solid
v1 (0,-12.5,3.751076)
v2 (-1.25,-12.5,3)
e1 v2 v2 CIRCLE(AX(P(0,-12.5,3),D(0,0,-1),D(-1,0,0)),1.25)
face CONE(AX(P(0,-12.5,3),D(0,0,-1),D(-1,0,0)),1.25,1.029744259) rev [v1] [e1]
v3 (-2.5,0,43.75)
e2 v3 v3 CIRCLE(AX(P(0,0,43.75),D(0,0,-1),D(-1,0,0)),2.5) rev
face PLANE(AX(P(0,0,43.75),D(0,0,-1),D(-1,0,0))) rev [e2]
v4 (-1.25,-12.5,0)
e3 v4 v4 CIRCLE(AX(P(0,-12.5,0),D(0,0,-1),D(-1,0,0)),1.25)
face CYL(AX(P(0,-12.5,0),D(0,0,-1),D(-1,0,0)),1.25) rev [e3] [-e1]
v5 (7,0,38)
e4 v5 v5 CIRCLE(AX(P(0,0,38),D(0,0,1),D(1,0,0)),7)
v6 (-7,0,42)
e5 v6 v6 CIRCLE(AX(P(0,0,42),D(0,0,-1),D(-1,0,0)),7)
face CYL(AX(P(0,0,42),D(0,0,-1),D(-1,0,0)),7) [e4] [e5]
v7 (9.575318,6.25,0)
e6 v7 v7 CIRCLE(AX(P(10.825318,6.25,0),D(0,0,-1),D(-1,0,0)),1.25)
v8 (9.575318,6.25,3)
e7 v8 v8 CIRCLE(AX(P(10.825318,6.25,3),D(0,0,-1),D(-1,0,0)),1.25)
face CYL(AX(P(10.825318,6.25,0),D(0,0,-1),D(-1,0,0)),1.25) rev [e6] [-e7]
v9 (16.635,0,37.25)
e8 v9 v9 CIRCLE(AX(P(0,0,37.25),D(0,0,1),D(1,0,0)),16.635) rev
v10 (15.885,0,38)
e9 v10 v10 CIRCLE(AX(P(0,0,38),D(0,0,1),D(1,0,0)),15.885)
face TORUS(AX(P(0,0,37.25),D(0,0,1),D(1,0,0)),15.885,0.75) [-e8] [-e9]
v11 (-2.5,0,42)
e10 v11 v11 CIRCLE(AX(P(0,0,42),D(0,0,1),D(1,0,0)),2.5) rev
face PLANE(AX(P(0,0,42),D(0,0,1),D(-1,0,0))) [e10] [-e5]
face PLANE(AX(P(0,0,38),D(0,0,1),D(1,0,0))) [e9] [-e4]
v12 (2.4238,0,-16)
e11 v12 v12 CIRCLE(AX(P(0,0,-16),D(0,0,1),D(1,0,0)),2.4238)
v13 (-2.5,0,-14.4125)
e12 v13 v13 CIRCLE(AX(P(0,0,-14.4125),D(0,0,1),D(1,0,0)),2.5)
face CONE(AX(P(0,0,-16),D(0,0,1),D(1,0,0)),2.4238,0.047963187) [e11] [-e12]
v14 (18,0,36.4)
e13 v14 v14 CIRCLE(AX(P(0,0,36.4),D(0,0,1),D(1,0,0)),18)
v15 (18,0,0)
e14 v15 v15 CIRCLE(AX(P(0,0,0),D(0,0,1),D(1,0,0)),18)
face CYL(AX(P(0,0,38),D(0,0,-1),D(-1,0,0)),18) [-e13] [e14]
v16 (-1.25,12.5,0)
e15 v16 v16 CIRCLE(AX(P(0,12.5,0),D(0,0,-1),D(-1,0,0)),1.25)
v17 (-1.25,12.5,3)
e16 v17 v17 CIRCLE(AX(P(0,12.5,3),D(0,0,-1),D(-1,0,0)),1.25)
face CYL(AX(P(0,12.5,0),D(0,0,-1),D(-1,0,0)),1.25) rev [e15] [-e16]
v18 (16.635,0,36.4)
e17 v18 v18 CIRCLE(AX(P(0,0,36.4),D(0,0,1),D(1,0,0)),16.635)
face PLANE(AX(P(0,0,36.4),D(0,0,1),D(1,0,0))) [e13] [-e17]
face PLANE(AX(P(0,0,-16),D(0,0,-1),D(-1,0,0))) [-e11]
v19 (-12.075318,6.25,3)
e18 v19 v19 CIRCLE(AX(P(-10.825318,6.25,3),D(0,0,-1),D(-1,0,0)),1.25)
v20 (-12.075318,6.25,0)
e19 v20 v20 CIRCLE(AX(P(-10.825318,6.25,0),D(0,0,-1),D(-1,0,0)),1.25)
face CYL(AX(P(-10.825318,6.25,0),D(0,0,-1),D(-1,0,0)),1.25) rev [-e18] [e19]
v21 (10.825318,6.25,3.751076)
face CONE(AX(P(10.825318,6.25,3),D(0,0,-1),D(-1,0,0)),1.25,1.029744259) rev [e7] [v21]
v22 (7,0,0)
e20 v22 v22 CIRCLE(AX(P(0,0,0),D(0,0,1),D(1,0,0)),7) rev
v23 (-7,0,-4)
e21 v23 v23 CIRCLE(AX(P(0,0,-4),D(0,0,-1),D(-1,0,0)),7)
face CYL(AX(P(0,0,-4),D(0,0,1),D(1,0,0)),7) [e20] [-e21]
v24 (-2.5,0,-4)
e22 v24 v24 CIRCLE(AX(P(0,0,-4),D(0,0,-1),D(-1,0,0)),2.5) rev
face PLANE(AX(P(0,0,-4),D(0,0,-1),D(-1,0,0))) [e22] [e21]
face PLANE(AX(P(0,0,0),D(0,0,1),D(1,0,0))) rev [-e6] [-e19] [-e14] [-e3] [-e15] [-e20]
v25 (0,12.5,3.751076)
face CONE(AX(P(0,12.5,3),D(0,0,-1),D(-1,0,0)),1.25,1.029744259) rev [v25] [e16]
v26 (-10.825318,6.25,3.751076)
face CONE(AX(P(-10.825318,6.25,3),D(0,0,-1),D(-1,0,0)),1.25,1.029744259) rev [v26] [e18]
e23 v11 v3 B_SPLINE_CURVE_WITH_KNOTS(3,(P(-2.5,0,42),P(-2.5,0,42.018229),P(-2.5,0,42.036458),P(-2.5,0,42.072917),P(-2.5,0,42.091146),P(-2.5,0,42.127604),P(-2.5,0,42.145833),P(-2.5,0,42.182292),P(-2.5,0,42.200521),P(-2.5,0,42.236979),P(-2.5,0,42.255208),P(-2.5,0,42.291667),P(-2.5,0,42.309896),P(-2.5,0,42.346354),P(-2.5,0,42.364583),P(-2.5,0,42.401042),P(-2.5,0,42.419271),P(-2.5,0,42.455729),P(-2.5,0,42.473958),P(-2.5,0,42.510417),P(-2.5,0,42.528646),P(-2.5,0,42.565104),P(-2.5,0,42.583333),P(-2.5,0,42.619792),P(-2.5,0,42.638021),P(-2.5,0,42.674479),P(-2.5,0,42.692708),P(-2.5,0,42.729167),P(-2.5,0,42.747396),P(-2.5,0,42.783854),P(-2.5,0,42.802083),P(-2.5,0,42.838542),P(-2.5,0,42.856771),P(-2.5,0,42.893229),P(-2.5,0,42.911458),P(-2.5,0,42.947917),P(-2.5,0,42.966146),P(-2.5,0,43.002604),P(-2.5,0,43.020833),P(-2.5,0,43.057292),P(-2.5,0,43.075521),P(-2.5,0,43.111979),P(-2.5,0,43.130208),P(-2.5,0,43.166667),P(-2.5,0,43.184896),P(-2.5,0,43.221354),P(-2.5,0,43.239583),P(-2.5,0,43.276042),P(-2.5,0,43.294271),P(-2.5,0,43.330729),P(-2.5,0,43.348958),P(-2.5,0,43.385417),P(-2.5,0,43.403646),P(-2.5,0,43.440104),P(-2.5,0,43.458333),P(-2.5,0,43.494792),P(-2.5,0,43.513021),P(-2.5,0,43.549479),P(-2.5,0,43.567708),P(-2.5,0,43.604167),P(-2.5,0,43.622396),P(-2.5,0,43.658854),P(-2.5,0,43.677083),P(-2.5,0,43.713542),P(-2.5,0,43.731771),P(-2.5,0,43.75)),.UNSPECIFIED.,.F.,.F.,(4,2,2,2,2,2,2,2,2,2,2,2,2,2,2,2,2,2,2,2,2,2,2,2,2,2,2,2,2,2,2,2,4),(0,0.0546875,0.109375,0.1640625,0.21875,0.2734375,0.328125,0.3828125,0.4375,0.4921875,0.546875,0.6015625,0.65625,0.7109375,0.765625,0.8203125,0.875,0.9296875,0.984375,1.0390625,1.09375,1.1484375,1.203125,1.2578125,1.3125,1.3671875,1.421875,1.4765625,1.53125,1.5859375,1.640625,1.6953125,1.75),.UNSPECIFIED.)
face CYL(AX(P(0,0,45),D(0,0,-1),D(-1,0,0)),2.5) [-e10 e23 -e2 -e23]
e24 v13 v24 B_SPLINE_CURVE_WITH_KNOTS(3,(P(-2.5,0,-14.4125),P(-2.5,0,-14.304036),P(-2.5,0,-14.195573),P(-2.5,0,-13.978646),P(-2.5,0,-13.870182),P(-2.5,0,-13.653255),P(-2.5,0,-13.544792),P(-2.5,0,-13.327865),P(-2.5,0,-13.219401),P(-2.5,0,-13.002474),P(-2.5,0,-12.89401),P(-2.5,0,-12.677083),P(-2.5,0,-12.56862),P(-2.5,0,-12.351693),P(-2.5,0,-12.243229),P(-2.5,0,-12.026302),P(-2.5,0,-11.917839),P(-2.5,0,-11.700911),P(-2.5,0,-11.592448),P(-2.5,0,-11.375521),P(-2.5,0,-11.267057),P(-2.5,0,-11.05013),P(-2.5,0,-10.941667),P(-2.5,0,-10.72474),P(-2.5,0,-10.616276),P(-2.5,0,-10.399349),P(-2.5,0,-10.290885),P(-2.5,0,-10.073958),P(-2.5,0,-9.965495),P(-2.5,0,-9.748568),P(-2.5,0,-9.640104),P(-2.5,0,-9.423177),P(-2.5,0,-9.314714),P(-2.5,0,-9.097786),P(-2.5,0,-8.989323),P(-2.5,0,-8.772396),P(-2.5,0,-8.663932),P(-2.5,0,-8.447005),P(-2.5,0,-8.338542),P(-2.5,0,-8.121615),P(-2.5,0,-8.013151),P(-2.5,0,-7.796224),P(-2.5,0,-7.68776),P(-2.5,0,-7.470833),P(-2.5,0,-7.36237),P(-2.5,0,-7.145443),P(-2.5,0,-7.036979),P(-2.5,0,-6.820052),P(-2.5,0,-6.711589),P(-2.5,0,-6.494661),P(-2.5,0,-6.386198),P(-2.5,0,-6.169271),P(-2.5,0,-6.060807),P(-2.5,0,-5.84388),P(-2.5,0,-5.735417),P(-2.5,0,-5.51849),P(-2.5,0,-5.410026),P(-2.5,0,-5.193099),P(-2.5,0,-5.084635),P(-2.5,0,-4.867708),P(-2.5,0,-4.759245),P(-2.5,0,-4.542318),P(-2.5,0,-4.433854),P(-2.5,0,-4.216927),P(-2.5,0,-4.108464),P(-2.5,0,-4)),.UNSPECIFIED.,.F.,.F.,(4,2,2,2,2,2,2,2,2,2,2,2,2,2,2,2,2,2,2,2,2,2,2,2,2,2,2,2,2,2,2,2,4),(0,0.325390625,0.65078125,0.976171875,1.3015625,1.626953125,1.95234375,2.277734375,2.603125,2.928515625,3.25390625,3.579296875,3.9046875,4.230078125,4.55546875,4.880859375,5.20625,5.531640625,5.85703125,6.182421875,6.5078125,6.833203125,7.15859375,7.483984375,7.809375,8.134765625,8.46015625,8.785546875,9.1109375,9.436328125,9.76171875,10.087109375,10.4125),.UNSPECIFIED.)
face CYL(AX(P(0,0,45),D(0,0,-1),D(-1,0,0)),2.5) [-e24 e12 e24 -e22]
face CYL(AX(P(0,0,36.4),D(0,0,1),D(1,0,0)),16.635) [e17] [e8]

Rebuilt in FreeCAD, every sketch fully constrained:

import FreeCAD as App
import Part
import Sketcher

V = App.Vector
Q = App.Units.Quantity


def edges_at(feature, points):
    """Names of the edges that pass closest to the given points."""
    edges = feature.Shape.Edges
    near = lambda p: min(range(len(edges)), key=lambda i: edges[i].distToShape(Part.Vertex(*p))[0])
    return sorted({f"Edge{near(p) + 1}" for p in points})

doc = App.newDocument("Part")
body = doc.addObject("PartDesign::Body", "Body")

# Sketch on XY plane
sketch1 = doc.addObject("Sketcher::SketchObject", "Sketch")
body.addObject(sketch1)
sketch1.AttachmentSupport = (doc.XY_Plane, [""])
sketch1.MapMode = "FlatFace"
sketch1.addGeometry(Part.Circle(V(0, 0, 0), V(0, 0, 1), 18), False)
sketch1.addConstraint([
    Sketcher.Constraint("Coincident", 0, 3, -1, 1),
    Sketcher.Constraint("Diameter", 0, Q("36 mm")),
])
pad1 = doc.addObject("PartDesign::Pad", "Pad")
body.addObject(pad1)
pad1.Profile = sketch1
pad1.Length = 38

# Sketch on XY plane
sketch2 = doc.addObject("Sketcher::SketchObject", "Sketch001")
body.addObject(sketch2)
sketch2.AttachmentSupport = (doc.XY_Plane, [""])
sketch2.MapMode = "FlatFace"
sketch2.addGeometry(Part.Circle(V(0, 0, 0), V(0, 0, 1), 2.5), False)
sketch2.addConstraint([
    Sketcher.Constraint("Coincident", 0, 3, -1, 1),
    Sketcher.Constraint("Diameter", 0, Q("5 mm")),
])
pad2 = doc.addObject("PartDesign::Pad", "Pad001")
body.addObject(pad2)
pad2.Profile = sketch2
pad2.Type = "TwoLengths"
pad2.Length = 16
pad2.Length2 = 45
pad2.Reversed = True

# Sketch on XY plane
sketch3 = doc.addObject("Sketcher::SketchObject", "Sketch002")
body.addObject(sketch3)
sketch3.AttachmentSupport = (doc.XY_Plane, [""])
sketch3.MapMode = "FlatFace"
sketch3.addGeometry(Part.Circle(V(0, 0, 0), V(0, 0, 1), 7), False)
sketch3.addConstraint([
    Sketcher.Constraint("Coincident", 0, 3, -1, 1),
    Sketcher.Constraint("Diameter", 0, Q("14 mm")),
])
pad3 = doc.addObject("PartDesign::Pad", "Pad002")
body.addObject(pad3)
pad3.Profile = sketch3
pad3.Length = 4
pad3.Reversed = True

# Sketch on XY plane
sketch4 = doc.addObject("Sketcher::SketchObject", "Sketch003")
body.addObject(sketch4)
sketch4.AttachmentSupport = (doc.XY_Plane, [""])
sketch4.MapMode = "FlatFace"
sketch4.addGeometry([
    Part.Circle(V(0, 12.5, 0), V(0, 0, 1), 1.2),
    Part.Circle(V(10.8, 6.2, 0), V(0, 0, 1), 1.2),
    Part.Circle(V(0, -12.5, 0), V(0, 0, 1), 1.2),
    Part.Circle(V(-10.8, 6.2, 0), V(0, 0, 1), 1.2),
], False)
sketch4.addConstraint([
    Sketcher.Constraint("Equal", 0, 1),
    Sketcher.Constraint("Equal", 1, 2),
    Sketcher.Constraint("Equal", 2, 3),
    Sketcher.Constraint("Symmetric", 0, 3, 2, 3, -1, 1),
    Sketcher.Constraint("Symmetric", 1, 3, 3, 3, -2),
    Sketcher.Constraint("PointOnObject", 0, 3, -2),
    Sketcher.Constraint("Diameter", 0, Q("2.5 mm")),
    Sketcher.Constraint("DistanceY", 2, 3, 0, 3, Q("25 mm")),
    Sketcher.Constraint("DistanceY", -1, 1, 1, 3, Q("6.25 mm")),
    Sketcher.Constraint("DistanceX", -1, 1, 1, 3, Q("10.825318 mm")),
])
doc.recompute()
hole = doc.addObject("PartDesign::Hole", "Hole")
body.addObject(hole)
hole.Profile = sketch4
hole.ThreadType = "None"
hole.Diameter = 2.5
hole.DepthType = "Dimension"
hole.Depth = 3
hole.DrillPoint = "Angled"
hole.DrillPointAngle = 118
hole.Reversed = True

# Sketch on XY plane
sketch5 = doc.addObject("Sketcher::SketchObject", "Sketch004")
body.addObject(sketch5)
sketch5.AttachmentSupport = (doc.XY_Plane, [""])
sketch5.MapMode = "FlatFace"
sketch5.AttachmentOffset = App.Placement(V(0, 0, 45), App.Rotation())
sketch5.addGeometry(Part.Circle(V(0, 0, 0), V(0, 0, 1), 2.5), False)
sketch5.addConstraint([
    Sketcher.Constraint("Coincident", 0, 3, -1, 1),
    Sketcher.Constraint("Diameter", 0, Q("5 mm")),
])
pocket1 = doc.addObject("PartDesign::Pocket", "Pocket")
body.addObject(pocket1)
pocket1.Profile = sketch5
pocket1.Length = 1.25
doc.recompute()

datumplane = doc.addObject("PartDesign::Plane", "DatumPlane")
body.addObject(datumplane)
datumplane.AttachmentSupport = (doc.XY_Plane, [""])
datumplane.MapMode = "FlatFace"
datumplane.AttachmentOffset = App.Placement(V(0, 0, 19), App.Rotation())
mirrored = doc.addObject("PartDesign::Mirrored", "Mirrored")
body.addObject(mirrored)
mirrored.Originals = [pad3]
mirrored.MirrorPlane = (datumplane, [""])
body.Tip = mirrored

# Sketch on XY plane
sketch6 = doc.addObject("Sketcher::SketchObject", "Sketch005")
body.addObject(sketch6)
sketch6.AttachmentSupport = (doc.XY_Plane, [""])
sketch6.MapMode = "FlatFace"
sketch6.AttachmentOffset = App.Placement(V(0, 0, 36.4), App.Rotation())
sketch6.addGeometry([
    Part.Circle(V(0, 0, 0), V(0, 0, 1), 18),
    Part.Circle(V(0, 0, 0), V(0, 0, 1), 17),
], False)
sketch6.addConstraint([
    Sketcher.Constraint("Coincident", 0, 3, -1, 1),
    Sketcher.Constraint("Coincident", 1, 3, -1, 1),
    Sketcher.Constraint("Diameter", 0, Q("36 mm")),
    Sketcher.Constraint("Diameter", 1, Q("33.27 mm")),
])
pocket2 = doc.addObject("PartDesign::Pocket", "Pocket001")
body.addObject(pocket2)
pocket2.Profile = sketch6
pocket2.Length = 1.6
pocket2.Reversed = True
doc.recompute()

fillet = doc.addObject("PartDesign::Fillet", "Fillet")
body.addObject(fillet)
fillet.Base = (pocket2, edges_at(pocket2, [(-16.635, 0, 38)]))
fillet.Radius = 0.75

# Sketch on XZ plane
sketch7 = doc.addObject("Sketcher::SketchObject", "Sketch006")
body.addObject(sketch7)
sketch7.AttachmentSupport = (doc.XZ_Plane, [""])
sketch7.MapMode = "FlatFace"
sketch7.addGeometry([
    Part.LineSegment(V(2.5, -14.41, 0), V(2.5, -16, 0)),
    Part.LineSegment(V(2.5, -16, 0), V(2.42, -16, 0)),
    Part.LineSegment(V(2.42, -16, 0), V(2.5, -14.41, 0)),
], False)
sketch7.addConstraint([
    Sketcher.Constraint("Coincident", 0, 2, 1, 1),
    Sketcher.Constraint("Coincident", 1, 2, 2, 1),
    Sketcher.Constraint("Coincident", 2, 2, 0, 1),
    Sketcher.Constraint("Vertical", 0),
    Sketcher.Constraint("Horizontal", 1),
    Sketcher.Constraint("DistanceY", 0, 2, -1, 1, Q("16 mm")),
    Sketcher.Constraint("DistanceX", -1, 1, 0, 2, Q("2.5 mm")),
    Sketcher.Constraint("DistanceX", 1, 2, 1, 1, Q("0.0762 mm")),
    Sketcher.Constraint("DistanceY", 0, 2, 0, 1, Q("1.5875 mm")),
])
groove = doc.addObject("PartDesign::Groove", "Groove")
body.addObject(groove)
groove.Profile = sketch7
groove.ReferenceAxis = (sketch7, ["V_Axis"])
groove.Angle = 360

doc.recompute()
